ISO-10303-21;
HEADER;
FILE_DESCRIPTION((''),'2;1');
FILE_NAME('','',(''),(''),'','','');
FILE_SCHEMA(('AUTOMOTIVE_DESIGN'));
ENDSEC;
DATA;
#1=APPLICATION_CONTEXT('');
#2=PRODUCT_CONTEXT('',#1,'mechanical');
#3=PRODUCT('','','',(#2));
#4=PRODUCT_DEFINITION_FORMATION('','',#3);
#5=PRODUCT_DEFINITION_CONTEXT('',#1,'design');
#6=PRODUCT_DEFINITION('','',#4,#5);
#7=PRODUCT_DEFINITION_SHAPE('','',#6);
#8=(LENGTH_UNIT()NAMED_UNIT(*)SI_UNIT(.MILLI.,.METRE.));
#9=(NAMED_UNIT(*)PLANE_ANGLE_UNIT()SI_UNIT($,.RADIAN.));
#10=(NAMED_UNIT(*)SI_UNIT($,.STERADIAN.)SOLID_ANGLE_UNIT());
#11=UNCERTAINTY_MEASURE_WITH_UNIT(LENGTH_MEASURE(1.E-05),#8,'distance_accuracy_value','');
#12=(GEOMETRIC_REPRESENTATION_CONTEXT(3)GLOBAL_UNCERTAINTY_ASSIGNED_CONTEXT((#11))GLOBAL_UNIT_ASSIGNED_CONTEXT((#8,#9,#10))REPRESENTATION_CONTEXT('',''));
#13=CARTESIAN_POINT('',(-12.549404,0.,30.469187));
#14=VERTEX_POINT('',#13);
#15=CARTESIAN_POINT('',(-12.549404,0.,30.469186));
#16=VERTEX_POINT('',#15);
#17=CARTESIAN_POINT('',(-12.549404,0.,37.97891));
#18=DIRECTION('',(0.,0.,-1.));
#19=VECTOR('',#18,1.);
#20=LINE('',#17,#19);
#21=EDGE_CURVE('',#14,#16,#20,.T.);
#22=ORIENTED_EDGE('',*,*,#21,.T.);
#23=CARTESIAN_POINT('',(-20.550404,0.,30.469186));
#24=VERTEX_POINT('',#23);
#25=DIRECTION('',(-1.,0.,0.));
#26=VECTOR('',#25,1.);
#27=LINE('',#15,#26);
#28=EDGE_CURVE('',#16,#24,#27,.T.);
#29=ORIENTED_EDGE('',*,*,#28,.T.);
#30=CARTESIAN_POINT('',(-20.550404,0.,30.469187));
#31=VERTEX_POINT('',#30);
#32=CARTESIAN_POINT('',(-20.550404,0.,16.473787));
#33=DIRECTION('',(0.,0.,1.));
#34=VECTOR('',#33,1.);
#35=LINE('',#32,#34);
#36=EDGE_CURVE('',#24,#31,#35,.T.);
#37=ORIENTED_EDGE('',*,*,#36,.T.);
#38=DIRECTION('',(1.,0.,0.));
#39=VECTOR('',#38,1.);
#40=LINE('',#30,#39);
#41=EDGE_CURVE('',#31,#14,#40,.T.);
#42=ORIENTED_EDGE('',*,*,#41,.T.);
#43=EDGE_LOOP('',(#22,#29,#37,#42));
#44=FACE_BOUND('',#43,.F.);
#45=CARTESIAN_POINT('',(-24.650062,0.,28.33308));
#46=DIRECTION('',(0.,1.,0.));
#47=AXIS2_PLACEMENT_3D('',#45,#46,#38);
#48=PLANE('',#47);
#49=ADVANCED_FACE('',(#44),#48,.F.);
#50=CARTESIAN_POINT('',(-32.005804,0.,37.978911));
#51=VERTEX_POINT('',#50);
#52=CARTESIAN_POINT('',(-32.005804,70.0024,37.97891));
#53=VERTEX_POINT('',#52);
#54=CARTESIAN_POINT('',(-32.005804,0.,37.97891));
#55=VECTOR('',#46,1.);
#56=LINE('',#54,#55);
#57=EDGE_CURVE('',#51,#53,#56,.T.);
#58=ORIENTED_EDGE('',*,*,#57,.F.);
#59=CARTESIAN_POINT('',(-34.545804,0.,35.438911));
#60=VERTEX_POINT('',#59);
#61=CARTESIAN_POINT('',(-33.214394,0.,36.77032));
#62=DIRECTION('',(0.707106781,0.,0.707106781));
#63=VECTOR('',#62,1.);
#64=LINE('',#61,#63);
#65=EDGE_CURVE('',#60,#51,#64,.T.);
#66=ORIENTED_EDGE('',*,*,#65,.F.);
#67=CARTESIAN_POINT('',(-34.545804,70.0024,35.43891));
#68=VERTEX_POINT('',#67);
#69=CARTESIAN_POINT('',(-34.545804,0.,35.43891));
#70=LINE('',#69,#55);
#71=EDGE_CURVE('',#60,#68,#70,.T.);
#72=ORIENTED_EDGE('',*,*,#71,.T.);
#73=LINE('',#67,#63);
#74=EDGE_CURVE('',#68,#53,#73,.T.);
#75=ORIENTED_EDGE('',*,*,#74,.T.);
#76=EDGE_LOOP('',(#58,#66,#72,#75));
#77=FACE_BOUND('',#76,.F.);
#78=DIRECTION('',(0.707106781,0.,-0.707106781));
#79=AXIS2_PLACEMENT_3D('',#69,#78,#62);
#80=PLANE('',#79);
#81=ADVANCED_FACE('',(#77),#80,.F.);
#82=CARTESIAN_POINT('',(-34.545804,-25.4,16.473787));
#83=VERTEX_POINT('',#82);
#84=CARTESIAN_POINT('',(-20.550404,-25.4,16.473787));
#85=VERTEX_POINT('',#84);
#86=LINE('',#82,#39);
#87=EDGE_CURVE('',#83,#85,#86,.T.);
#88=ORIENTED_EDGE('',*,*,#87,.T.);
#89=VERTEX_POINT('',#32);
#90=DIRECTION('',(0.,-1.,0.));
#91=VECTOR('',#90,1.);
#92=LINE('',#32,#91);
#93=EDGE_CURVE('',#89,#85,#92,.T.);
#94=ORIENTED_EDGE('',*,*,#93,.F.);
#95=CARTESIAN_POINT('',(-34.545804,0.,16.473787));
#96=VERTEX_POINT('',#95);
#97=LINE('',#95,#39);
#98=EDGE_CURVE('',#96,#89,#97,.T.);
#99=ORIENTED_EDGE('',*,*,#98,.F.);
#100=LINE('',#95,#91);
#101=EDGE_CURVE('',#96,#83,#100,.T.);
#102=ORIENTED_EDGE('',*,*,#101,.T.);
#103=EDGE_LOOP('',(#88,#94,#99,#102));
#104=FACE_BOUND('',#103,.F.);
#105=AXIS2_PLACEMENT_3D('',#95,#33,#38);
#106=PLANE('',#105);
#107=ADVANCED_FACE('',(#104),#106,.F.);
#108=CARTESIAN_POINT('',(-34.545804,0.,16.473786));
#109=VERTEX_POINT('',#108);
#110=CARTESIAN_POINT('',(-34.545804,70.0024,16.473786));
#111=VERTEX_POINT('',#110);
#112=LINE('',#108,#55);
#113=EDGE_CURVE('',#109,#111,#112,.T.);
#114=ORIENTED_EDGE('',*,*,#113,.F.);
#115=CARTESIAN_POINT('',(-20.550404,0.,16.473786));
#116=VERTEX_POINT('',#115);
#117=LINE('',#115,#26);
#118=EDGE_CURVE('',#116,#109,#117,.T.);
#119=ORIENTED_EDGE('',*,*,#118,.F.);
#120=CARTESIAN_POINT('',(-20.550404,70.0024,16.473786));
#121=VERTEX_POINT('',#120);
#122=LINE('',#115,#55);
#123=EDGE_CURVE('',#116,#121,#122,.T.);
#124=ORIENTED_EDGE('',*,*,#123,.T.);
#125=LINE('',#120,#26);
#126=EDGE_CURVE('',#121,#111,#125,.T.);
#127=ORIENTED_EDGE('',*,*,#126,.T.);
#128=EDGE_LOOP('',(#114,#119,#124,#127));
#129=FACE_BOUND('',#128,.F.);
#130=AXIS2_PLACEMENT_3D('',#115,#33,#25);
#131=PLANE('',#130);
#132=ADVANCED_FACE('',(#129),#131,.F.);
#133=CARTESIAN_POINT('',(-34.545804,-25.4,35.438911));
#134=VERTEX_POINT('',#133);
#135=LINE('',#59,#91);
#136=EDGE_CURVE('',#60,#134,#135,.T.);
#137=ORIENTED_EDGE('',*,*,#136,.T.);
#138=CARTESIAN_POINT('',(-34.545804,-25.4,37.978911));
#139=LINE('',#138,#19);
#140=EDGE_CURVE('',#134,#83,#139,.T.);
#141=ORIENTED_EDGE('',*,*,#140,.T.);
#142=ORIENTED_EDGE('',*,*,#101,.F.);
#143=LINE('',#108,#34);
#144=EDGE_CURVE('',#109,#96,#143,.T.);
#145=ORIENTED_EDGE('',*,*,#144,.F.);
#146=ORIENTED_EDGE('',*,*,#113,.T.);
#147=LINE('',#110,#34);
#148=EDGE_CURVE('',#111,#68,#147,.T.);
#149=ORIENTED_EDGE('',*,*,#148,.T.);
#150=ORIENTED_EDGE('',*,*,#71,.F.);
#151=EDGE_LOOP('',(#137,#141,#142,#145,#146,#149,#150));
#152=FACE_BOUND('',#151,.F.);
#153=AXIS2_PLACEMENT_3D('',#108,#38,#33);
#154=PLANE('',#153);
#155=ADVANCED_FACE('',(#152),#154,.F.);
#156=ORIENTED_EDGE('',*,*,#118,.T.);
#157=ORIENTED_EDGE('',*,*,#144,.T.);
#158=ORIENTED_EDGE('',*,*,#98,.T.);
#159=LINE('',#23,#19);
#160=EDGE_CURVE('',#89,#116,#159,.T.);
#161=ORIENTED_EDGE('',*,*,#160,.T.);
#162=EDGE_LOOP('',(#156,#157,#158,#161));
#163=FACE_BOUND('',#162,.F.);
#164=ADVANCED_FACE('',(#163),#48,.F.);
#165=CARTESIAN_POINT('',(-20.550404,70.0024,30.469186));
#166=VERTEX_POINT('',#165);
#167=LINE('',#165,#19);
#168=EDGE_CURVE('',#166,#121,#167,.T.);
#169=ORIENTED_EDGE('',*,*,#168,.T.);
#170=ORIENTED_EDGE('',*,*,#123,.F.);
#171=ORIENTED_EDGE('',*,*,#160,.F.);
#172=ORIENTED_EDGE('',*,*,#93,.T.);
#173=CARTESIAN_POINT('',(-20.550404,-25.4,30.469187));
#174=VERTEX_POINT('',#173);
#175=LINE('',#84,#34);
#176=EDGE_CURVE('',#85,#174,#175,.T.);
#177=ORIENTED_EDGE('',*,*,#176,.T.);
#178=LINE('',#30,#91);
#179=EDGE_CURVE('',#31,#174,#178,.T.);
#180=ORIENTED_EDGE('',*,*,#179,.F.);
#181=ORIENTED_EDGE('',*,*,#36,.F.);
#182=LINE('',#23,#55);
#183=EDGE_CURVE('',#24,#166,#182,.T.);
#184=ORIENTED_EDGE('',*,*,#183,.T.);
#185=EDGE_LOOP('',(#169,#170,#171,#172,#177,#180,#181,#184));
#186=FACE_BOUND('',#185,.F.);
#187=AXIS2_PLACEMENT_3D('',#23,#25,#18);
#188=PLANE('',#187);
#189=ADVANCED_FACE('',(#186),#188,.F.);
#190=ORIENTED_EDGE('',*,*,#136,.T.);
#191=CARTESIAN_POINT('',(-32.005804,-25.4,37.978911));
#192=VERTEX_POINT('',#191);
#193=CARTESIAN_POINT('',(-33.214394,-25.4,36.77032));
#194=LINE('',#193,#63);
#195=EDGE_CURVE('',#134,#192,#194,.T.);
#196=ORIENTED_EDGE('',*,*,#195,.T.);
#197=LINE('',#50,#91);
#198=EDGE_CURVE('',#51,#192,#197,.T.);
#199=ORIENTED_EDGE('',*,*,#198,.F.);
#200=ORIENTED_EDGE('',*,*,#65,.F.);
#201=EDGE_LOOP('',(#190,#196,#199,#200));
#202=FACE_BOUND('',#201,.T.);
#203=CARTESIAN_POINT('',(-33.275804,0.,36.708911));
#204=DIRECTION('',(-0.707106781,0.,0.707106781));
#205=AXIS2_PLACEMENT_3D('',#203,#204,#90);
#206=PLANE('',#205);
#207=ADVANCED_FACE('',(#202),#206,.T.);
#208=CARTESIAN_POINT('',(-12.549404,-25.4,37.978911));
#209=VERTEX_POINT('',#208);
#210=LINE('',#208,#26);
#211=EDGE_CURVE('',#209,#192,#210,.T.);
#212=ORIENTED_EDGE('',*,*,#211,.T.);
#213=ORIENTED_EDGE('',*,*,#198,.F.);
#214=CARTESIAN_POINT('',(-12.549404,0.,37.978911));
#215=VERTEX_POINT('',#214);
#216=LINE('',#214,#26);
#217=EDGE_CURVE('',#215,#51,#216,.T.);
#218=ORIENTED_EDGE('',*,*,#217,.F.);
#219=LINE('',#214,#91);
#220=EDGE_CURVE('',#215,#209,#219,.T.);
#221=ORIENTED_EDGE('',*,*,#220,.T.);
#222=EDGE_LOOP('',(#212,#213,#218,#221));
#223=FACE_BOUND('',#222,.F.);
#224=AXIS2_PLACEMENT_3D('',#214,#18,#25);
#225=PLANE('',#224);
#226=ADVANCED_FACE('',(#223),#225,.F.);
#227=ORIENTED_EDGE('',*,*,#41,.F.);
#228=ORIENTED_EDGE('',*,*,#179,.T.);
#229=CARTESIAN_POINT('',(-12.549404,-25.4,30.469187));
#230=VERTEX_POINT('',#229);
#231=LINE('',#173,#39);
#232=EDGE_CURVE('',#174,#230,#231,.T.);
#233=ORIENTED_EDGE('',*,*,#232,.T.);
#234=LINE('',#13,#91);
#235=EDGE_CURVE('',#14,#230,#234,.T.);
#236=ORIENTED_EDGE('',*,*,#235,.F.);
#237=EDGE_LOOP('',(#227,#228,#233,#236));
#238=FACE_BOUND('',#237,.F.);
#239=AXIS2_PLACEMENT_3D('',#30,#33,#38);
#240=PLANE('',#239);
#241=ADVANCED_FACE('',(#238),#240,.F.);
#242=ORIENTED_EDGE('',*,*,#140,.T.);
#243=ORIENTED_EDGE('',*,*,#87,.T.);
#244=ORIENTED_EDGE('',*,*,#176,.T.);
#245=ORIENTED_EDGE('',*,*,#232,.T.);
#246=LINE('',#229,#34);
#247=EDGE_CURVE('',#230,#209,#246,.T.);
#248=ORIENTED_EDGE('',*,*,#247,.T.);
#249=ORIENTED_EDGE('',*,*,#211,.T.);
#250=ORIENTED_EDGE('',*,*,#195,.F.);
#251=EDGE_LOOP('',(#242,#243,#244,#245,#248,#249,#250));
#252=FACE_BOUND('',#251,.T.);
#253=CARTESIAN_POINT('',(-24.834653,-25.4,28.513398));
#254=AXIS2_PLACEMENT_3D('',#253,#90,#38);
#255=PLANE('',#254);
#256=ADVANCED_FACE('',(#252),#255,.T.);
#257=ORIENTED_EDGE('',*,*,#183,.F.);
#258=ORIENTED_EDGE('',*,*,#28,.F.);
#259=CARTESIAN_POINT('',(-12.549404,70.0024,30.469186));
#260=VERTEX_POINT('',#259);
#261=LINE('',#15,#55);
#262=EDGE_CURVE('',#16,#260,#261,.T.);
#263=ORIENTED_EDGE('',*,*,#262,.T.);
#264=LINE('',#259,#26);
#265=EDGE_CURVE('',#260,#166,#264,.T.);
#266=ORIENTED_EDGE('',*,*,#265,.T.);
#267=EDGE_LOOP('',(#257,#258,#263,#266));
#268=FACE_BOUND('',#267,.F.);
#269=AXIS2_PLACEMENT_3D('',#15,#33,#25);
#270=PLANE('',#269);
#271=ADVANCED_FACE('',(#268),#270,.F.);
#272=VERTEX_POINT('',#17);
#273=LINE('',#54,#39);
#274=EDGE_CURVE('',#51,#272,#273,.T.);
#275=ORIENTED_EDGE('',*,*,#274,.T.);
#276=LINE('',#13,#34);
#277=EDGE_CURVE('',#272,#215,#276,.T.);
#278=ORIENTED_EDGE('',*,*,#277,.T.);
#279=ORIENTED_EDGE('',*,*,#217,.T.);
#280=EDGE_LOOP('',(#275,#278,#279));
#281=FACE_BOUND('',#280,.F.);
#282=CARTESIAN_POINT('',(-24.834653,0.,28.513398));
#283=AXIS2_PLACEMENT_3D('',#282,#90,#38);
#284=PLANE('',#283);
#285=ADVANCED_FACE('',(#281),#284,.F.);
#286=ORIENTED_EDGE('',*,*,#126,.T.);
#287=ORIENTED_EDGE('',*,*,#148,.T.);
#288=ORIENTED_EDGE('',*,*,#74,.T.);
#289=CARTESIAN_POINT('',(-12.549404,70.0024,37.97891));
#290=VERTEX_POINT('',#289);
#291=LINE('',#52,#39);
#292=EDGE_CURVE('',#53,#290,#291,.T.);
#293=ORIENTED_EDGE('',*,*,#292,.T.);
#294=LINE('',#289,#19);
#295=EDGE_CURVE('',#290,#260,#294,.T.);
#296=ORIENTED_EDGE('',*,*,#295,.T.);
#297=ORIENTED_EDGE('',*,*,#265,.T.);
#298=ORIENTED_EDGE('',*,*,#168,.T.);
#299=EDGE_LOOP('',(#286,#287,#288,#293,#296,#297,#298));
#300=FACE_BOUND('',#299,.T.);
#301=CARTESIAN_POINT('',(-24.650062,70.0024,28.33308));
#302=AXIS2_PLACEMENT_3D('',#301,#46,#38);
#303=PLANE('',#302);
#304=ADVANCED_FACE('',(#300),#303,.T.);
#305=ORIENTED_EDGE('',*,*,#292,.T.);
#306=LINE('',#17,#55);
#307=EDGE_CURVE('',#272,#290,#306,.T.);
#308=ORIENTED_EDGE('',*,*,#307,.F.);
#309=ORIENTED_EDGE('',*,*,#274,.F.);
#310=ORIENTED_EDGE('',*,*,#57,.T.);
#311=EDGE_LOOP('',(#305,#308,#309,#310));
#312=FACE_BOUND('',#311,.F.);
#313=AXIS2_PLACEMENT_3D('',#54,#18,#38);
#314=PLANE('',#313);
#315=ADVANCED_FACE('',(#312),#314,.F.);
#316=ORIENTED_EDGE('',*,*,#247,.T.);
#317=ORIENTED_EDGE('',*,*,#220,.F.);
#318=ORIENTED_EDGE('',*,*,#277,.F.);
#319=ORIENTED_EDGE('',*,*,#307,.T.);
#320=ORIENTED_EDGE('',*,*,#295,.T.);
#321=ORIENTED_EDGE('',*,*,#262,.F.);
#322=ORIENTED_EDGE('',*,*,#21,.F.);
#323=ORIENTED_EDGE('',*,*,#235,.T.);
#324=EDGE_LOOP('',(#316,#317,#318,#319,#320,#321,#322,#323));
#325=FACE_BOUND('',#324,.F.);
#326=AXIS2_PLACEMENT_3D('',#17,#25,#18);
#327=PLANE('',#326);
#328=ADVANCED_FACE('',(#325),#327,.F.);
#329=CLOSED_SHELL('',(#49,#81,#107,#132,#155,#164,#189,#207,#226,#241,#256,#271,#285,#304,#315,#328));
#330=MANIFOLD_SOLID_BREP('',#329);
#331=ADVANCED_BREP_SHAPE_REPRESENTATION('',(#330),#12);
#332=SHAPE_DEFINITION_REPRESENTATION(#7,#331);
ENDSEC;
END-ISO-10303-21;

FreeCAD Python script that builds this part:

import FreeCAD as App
import Part
import Sketcher
Q = App.Units.Quantity


def edges_at(feature, points):
    """Names of the edges that pass closest to the given points."""
    edges = feature.Shape.Edges
    near = lambda p: min(range(len(edges)), key=lambda i: edges[i].distToShape(Part.Vertex(*p))[0])
    return sorted({f"Edge{near(p) + 1}" for p in points})


def add_polygon(sketch, points):
    """Adds a closed chain of lines whose ends are joined by coincident constraints."""
    first, n = sketch.GeometryCount, len(points)
    for a, b in zip(points, points[1:] + points[:1]):
        sketch.addGeometry(Part.LineSegment(App.Vector(*a, 0), App.Vector(*b, 0)), False)
    for i in range(n):
        sketch.addConstraint(Sketcher.Constraint("Coincident", first + i, 2, first + (i + 1) % n, 1))

doc = App.newDocument("Part")
body = doc.addObject("PartDesign::Body", "Body")

sketch1 = body.newObject("Sketcher::SketchObject", "Sketch")
sketch1.AttachmentSupport = (doc.getObject("XZ_Plane"), [""])
sketch1.MapMode = "FlatFace"
add_polygon(sketch1, [(-34.545804, 37.978911), (-34.545804, 16.473787), (-20.550404, 16.473787), (-20.550404, 30.469187), (-12.549404, 30.469187), (-12.549404, 37.978911)])
sketch1.addConstraint([
    Sketcher.Constraint("Vertical", 0),
    Sketcher.Constraint("Horizontal", 1),
    Sketcher.Constraint("Vertical", 2),
    Sketcher.Constraint("Horizontal", 3),
    Sketcher.Constraint("Vertical", 4),
    Sketcher.Constraint("Horizontal", 5),
    Sketcher.Constraint("Equal", 1, 2),
    Sketcher.Constraint("DistanceX", 1, 1, 1, 2, Q("0.551 in")),
    Sketcher.Constraint("DistanceX", 3, 1, 3, 2, Q("0.315 in")),
    Sketcher.Constraint("DistanceY", 0, 2, 0, 1, Q("21.505124 mm")),
    Sketcher.Constraint("DistanceY", -1, 1, 4, 2, Q("37.978911 mm")),
    Sketcher.Constraint("DistanceX", 0, 2, -1, 1, Q("34.545804 mm")),
])
pad1 = body.newObject("PartDesign::Pad", "Pad")
pad1.Profile = sketch1
pad1.Length = Q("1 in")
doc.recompute()

chamfer = body.newObject("PartDesign::Chamfer", "Chamfer")
chamfer.Base = (pad1, edges_at(pad1, [(-34.546, -12.7, 37.979)]))
chamfer.Size = Q("0.1 in")

sketch2 = body.newObject("Sketcher::SketchObject", "Sketch001")
sketch2.AttachmentSupport = (doc.getObject("XZ_Plane"), [""])
sketch2.MapMode = "FlatFace"
add_polygon(sketch2, [(-32.005804, 37.97891), (-12.549404, 37.97891), (-12.549404, 30.469186), (-20.550404, 30.469186), (-20.550404, 16.473786), (-34.545804, 16.473786), (-34.545804, 35.43891)])
sketch2.addConstraint([
    Sketcher.Constraint("Horizontal", 0),
    Sketcher.Constraint("Vertical", 1),
    Sketcher.Constraint("Horizontal", 2),
    Sketcher.Constraint("Vertical", 3),
    Sketcher.Constraint("Horizontal", 4),
    Sketcher.Constraint("Vertical", 5),
    Sketcher.Constraint("Equal", 4, 3),
    Sketcher.Constraint("Angle", 6, Q("45 deg")),
    Sketcher.Constraint("DistanceY", 5, 2, 0, 2, Q("0.1 in")),
    Sketcher.Constraint("DistanceX", 0, 1, 0, 2, Q("0.766 in")),
    Sketcher.Constraint("DistanceX", 2, 2, 2, 1, Q("0.315 in")),
    Sketcher.Constraint("DistanceY", 1, 2, 1, 1, Q("7.509724 mm")),
    Sketcher.Constraint("DistanceY", -1, 1, 0, 2, Q("37.97891 mm")),
    Sketcher.Constraint("DistanceX", 0, 2, -1, 1, Q("12.549404 mm")),
])
pad2 = body.newObject("PartDesign::Pad", "Pad001")
pad2.Profile = sketch2
pad2.Length = Q("2.756 in")
pad2.Reversed = True

doc.recompute()
